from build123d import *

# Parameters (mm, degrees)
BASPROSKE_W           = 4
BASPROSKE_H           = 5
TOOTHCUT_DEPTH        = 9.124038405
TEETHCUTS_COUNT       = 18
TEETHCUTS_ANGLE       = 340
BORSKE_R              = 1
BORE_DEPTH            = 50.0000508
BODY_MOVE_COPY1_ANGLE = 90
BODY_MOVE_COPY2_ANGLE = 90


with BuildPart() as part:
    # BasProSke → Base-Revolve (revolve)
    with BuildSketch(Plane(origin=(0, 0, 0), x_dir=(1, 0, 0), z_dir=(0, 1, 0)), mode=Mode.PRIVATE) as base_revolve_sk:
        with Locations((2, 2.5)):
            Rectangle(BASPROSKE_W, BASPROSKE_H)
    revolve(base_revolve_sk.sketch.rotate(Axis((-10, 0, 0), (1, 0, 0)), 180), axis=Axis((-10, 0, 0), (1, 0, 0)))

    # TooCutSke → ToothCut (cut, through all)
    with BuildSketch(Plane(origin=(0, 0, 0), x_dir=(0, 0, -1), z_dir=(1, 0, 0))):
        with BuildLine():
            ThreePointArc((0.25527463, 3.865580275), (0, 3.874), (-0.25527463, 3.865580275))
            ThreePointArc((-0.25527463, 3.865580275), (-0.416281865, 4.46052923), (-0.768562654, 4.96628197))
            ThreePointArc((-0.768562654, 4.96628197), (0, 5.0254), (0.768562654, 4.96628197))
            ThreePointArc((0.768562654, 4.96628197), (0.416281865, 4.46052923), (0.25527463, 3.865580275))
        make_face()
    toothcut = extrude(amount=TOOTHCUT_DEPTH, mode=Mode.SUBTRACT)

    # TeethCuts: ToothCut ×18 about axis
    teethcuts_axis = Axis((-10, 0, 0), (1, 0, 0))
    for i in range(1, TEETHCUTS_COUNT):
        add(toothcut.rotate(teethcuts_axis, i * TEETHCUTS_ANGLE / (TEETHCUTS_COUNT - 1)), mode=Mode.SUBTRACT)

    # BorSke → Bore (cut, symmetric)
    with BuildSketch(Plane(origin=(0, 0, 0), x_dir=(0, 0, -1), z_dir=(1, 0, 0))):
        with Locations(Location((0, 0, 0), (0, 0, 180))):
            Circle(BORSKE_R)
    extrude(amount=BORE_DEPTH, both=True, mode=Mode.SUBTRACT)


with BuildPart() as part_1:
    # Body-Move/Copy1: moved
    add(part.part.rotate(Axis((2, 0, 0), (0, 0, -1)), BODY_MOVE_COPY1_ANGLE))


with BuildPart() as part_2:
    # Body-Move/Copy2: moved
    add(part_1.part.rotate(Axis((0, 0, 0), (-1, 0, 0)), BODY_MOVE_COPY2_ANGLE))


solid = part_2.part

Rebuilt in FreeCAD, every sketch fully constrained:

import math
import FreeCAD as App
import Part
import Sketcher


def add_polygon(sketch, points):
    """Adds a closed chain of lines whose ends are joined by coincident constraints."""
    first, n = sketch.GeometryCount, len(points)
    for a, b in zip(points, points[1:] + points[:1]):
        sketch.addGeometry(Part.LineSegment(App.Vector(*a, 0), App.Vector(*b, 0)), False)
    for i in range(n):
        sketch.addConstraint(Sketcher.Constraint("Coincident", first + i, 2, first + (i + 1) % n, 1))

doc = App.newDocument("Part")
params = doc.addObject("Spreadsheet::Sheet", "Params")
for row, (alias, value) in enumerate([
    ("sketch1_width", "4 mm"),
    ("sketch1_height", "5 mm"),
    ("revolution_angle", "360 deg"),
    ("sketch2_radius", "1.8 mm"),
    ("sketch3_diameter", "2 mm"),
    ("pocket2_length", "100.000102 mm"),
], start=1):
    params.set(f"A{row}", alias)
    params.set(f"B{row}", "=" + value)
    params.setAlias(f"B{row}", alias)

body = doc.addObject("PartDesign::Body", "Body")

# Sketch on XZ plane
sketch1 = body.newObject("Sketcher::SketchObject", "Sketch")
sketch1.AttachmentSupport = (doc.getObject("XZ_Plane"), [""])
sketch1.MapMode = "FlatFace"
add_polygon(sketch1, [(0, -5), (0, 0), (4, 0), (4, -5)])  # lines 0-3
sketch1.addConstraint([
    Sketcher.Constraint("Vertical", 0),
    Sketcher.Constraint("Horizontal", 1),
    Sketcher.Constraint("Vertical", 2),
    Sketcher.Constraint("Horizontal", 3),
    Sketcher.Constraint("Coincident", 0, 2, -1, 1),
    Sketcher.Constraint("DistanceX", 1, 1, 1, 2, 4.0),
    Sketcher.Constraint("DistanceY", 0, 1, 0, 2, 5.0),
])
sketch1.setExpression("Constraints[9]", "Params.sketch1_width")
sketch1.setExpression("Constraints[10]", "Params.sketch1_height")
revolution = body.newObject("PartDesign::Revolution", "Revolution")
revolution.Profile = sketch1
revolution.ReferenceAxis = (sketch1, ["H_Axis"])
revolution.setExpression("Angle", "Params.revolution_angle")

# Sketch on YZ plane
sketch2 = body.newObject("Sketcher::SketchObject", "Sketch001")
sketch2.AttachmentSupport = (doc.getObject("YZ_Plane"), [""])
sketch2.MapMode = "FlatFace"
sketch2.addGeometry([
    Part.ArcOfCircle(Part.Circle(App.Vector(0, 0, 0), App.Vector(0, 0, 1), 3.9), math.radians(-3.78), math.radians(3.78)),
    Part.ArcOfCircle(Part.Circle(App.Vector(3.7, -2, 0), App.Vector(0, 0, 1), 1.8), math.radians(45), math.radians(85)),
    Part.ArcOfCircle(Part.Circle(App.Vector(0, 0, 0), App.Vector(0, 0, 1), 5), math.radians(-8.8), math.radians(8.8)),
    Part.ArcOfCircle(Part.Circle(App.Vector(3.7, 2, 0), App.Vector(0, 0, 1), 1.8), math.radians(-85), math.radians(-45)),
], False)
sketch2.addConstraint([
    Sketcher.Constraint("Coincident", 0, 1, 1, 2),
    Sketcher.Constraint("Coincident", 1, 1, 2, 1),
    Sketcher.Constraint("Coincident", 2, 2, 3, 2),
    Sketcher.Constraint("Coincident", 3, 1, 0, 2),
    Sketcher.Constraint("Coincident", 0, 3, -1, 1),
    Sketcher.Constraint("Coincident", 2, 3, -1, 1),
    Sketcher.Constraint("Equal", 1, 3),
    Sketcher.Constraint("Symmetric", 1, 3, 3, 3, -1),
    Sketcher.Constraint("Radius", 1, 1.8),
    Sketcher.Constraint("Radius", 0, 3.874),
    Sketcher.Constraint("Radius", 2, 5.0254),
    Sketcher.Constraint("DistanceX", 0, 1, 1, 1, 1.100702),
    Sketcher.Constraint("DistanceX", -1, 1, 1, 3, 3.699789),
])
sketch2.setExpression("Constraints[8]", "Params.sketch2_radius")
pocket1 = body.newObject("PartDesign::Pocket", "Pocket")
pocket1.Profile = sketch2
pocket1.Type = "ThroughAll"
pocket1.Reversed = True
doc.recompute()

polarpattern = body.newObject("PartDesign::PolarPattern", "PolarPattern")
polarpattern.Originals = [pocket1]
polarpattern.Axis = (doc.getObject("X_Axis"), [""])
polarpattern.Angle = 360
polarpattern.Occurrences = 18
body.Tip = polarpattern

# Sketch on YZ plane
sketch3 = body.newObject("Sketcher::SketchObject", "Sketch002")
sketch3.AttachmentSupport = (doc.getObject("YZ_Plane"), [""])
sketch3.MapMode = "FlatFace"
sketch3.addGeometry(Part.Circle(App.Vector(0, 0, 0), App.Vector(0, 0, 1), 1), False)
sketch3.addConstraint([
    Sketcher.Constraint("Coincident", 0, 3, -1, 1),
    Sketcher.Constraint("Diameter", 0, 2.0),
])
sketch3.setExpression("Constraints[1]", "Params.sketch3_diameter")
pocket2 = body.newObject("PartDesign::Pocket", "Pocket001")
pocket2.Profile = sketch3
pocket2.setExpression("Length", "Params.pocket2_length")
pocket2.Midplane = True
body2 = doc.addObject("PartDesign::Body", "Body001")
doc.recompute()

body.Placement = App.Placement(App.Vector(2, 2, 0), App.Rotation(App.Vector(0, 0, -1), 90))
boolean = body2.newObject("PartDesign::Boolean", "Boolean")
boolean.Type = "Fuse"
boolean.addObjects([body])
body3 = doc.addObject("PartDesign::Body", "Body002")
doc.recompute()

body2.Placement = App.Placement(App.Vector(0, 0, 0), App.Rotation(App.Vector(-1, 0, 0), 90))
boolean2 = body3.newObject("PartDesign::Boolean", "Boolean001")
boolean2.Type = "Fuse"
boolean2.addObjects([body2])

doc.recompute()
